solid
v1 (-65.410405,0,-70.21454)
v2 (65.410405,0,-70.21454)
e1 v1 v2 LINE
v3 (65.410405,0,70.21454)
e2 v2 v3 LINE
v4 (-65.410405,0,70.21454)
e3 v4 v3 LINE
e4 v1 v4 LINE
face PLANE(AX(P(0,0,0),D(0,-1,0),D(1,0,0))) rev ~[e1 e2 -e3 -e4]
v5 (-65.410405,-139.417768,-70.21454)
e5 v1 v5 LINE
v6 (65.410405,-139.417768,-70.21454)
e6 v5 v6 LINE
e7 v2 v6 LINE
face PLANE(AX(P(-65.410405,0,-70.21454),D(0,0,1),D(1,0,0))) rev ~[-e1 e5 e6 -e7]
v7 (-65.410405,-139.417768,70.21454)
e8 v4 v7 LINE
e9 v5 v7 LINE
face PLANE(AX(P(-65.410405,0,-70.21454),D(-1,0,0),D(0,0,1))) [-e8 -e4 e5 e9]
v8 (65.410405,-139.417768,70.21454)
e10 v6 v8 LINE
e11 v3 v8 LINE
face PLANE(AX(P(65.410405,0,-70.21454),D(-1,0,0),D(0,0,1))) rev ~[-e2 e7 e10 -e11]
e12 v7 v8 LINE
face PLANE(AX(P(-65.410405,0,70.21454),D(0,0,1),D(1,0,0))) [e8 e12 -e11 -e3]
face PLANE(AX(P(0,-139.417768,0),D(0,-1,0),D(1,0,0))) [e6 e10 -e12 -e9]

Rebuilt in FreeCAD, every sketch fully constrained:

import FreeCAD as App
import Part
import Sketcher

doc = App.newDocument("Part")
body = doc.addObject("PartDesign::Body", "Body")

# Sketch on XZ plane
sketch1 = body.newObject("Sketcher::SketchObject", "Sketch")
sketch1.AttachmentSupport = (doc.getObject("XZ_Plane"), [""])
sketch1.MapMode = "FlatFace"
sketch1.addGeometry([
    Part.LineSegment(App.Vector(-65, 70, 0), App.Vector(-65, -70, 0)),
    Part.LineSegment(App.Vector(-65, -70, 0), App.Vector(65, -70, 0)),
    Part.LineSegment(App.Vector(65, -70, 0), App.Vector(65, 70, 0)),
    Part.LineSegment(App.Vector(65, 70, 0), App.Vector(-65, 70, 0)),
], False)
sketch1.addConstraint([
    Sketcher.Constraint("Coincident", 0, 2, 1, 1),
    Sketcher.Constraint("Coincident", 1, 2, 2, 1),
    Sketcher.Constraint("Coincident", 2, 2, 3, 1),
    Sketcher.Constraint("Coincident", 3, 2, 0, 1),
    Sketcher.Constraint("Vertical", 0),
    Sketcher.Constraint("Horizontal", 1),
    Sketcher.Constraint("Vertical", 2),
    Sketcher.Constraint("Horizontal", 3),
    Sketcher.Constraint("Symmetric", 0, 2, 2, 2, -1, 1),
    Sketcher.Constraint("DistanceX", 1, 1, 1, 2, 130.82081),
    Sketcher.Constraint("DistanceY", 0, 2, 0, 1, 140.42908),
])
pad1 = body.newObject("PartDesign::Pad", "Pad")
pad1.Profile = sketch1
pad1.Length = 139.417768

doc.recompute()
